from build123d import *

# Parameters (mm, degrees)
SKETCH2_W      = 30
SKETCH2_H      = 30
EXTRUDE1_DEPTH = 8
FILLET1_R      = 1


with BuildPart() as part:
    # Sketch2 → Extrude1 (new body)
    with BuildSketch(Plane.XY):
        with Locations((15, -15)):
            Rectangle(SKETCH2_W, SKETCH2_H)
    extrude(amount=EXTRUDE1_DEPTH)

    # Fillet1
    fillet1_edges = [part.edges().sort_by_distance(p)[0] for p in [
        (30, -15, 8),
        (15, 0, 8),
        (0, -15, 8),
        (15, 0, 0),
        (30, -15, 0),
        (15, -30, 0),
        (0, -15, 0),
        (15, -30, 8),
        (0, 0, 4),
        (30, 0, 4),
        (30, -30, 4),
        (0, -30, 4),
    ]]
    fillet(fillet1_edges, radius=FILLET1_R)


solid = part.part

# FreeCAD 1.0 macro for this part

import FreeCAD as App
import Part
import Sketcher

V = App.Vector
Q = App.Units.Quantity


def add_polygon(sketch, points):
    """Adds a closed chain of lines whose ends are joined by coincident constraints."""
    first, n = sketch.GeometryCount, len(points)
    for a, b in zip(points, points[1:] + points[:1]):
        sketch.addGeometry(Part.LineSegment(App.Vector(*a, 0), App.Vector(*b, 0)), False)
    for i in range(n):
        sketch.addConstraint(Sketcher.Constraint("Coincident", first + i, 2, first + (i + 1) % n, 1))

doc = App.newDocument("Part")
body = doc.addObject("PartDesign::Body", "Body")

sketch1 = body.newObject("Sketcher::SketchObject", "Sketch")
sketch1.AttachmentSupport = (doc.getObject("XY_Plane"), [""])
sketch1.MapMode = "FlatFace"
add_polygon(sketch1, [(0, 0), (0, -30), (30, -30), (30, 0)])
sketch1.addConstraint(Sketcher.Constraint("Vertical", 0))
sketch1.addConstraint(Sketcher.Constraint("Horizontal", 1))
sketch1.addConstraint(Sketcher.Constraint("Vertical", 2))
sketch1.addConstraint(Sketcher.Constraint("Horizontal", 3))
sketch1.addConstraint(Sketcher.Constraint("Coincident", 3, 2, -1, 1))
sketch1.addConstraint(Sketcher.Constraint("Equal", 3, 0))
sketch1.addConstraint(Sketcher.Constraint("DistanceX", 1, 1, 1, 2, Q("30 mm")))
pad1 = body.newObject("PartDesign::Pad", "Pad")
pad1.Profile = sketch1
pad1.Length = 8
doc.recompute()

fillet = body.newObject("PartDesign::Fillet", "Fillet")
fillet.Base = (pad1, ["Edge1"])
fillet.UseAllEdges = True
fillet.Radius = 1

doc.recompute()
